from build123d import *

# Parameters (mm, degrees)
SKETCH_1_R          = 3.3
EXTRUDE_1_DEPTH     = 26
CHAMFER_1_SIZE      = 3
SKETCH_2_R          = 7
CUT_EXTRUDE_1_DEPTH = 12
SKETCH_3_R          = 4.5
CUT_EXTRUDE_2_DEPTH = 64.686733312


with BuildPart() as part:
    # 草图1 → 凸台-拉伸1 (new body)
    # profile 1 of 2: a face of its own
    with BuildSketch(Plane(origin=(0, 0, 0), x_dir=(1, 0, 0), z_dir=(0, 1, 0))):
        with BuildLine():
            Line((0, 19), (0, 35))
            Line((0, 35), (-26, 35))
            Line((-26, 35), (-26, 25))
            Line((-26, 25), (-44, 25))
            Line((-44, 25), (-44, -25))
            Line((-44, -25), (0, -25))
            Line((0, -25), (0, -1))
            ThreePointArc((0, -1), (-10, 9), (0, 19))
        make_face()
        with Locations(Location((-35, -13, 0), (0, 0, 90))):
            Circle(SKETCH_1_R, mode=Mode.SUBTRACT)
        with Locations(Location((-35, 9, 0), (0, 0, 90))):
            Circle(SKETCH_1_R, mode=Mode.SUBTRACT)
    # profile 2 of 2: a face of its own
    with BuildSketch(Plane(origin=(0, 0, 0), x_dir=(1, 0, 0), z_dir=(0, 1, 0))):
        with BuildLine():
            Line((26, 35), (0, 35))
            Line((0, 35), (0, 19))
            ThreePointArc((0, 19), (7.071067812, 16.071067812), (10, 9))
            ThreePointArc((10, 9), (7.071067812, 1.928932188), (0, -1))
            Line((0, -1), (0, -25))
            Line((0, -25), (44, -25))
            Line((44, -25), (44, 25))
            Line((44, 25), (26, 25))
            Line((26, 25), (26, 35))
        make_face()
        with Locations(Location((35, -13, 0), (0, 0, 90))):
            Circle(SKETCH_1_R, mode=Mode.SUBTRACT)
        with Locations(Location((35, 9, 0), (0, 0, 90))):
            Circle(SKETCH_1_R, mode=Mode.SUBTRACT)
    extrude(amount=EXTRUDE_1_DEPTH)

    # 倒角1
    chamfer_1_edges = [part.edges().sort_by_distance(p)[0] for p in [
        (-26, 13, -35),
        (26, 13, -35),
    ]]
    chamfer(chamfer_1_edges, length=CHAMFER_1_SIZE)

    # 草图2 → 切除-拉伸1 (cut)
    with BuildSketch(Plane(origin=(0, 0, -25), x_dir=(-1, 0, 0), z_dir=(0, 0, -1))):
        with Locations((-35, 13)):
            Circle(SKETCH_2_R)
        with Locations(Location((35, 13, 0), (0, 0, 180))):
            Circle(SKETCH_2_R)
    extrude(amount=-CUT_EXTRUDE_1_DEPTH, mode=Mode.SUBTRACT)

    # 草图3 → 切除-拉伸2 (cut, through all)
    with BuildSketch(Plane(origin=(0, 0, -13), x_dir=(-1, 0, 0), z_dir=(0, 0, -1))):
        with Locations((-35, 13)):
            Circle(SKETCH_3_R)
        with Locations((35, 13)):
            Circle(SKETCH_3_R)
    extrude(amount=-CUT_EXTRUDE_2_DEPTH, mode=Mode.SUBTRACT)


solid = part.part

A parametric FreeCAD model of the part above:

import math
import FreeCAD as App
import Part
import Sketcher
from FreeCAD import Vector


def edges_at(feature, points):
    """Names of the edges that pass closest to the given points."""
    edges = feature.Shape.Edges
    near = lambda p: min(range(len(edges)), key=lambda i: edges[i].distToShape(Part.Vertex(*p))[0])
    return sorted({f"Edge{near(p) + 1}" for p in points})


def add_polygon(sketch, points):
    """Adds a closed chain of lines whose ends are joined by coincident constraints."""
    first, n = sketch.GeometryCount, len(points)
    for a, b in zip(points, points[1:] + points[:1]):
        sketch.addGeometry(Part.LineSegment(App.Vector(*a, 0), App.Vector(*b, 0)), False)
    for i in range(n):
        sketch.addConstraint(Sketcher.Constraint("Coincident", first + i, 2, first + (i + 1) % n, 1))

doc = App.newDocument("Part")
params = doc.addObject("Spreadsheet::Sheet", "Params")
for row, (alias, value) in enumerate([
    ("sketch1_radius", "10 mm"),
    ("sketch1_diameter", "6.6 mm"),
    ("sketch1_width", "18 mm"),
    ("sketch1_width2", "88 mm"),
    ("sketch1_height", "10 mm"),
    ("pad1_length", "26 mm"),
    ("chamfer_size", "3 mm"),
    ("sketch2_diameter", "14 mm"),
    ("pocket1_length", "12 mm"),
    ("sketch3_diameter", "9 mm"),
], start=1):
    params.set(f"A{row}", alias)
    params.set(f"B{row}", "=" + value)
    params.setAlias(f"B{row}", alias)

body = doc.addObject("PartDesign::Body", "Body")

sketch1 = body.newObject("Sketcher::SketchObject", "Sketch")
sketch1.AttachmentSupport = (doc.getObject("XZ_Plane"), [""])
sketch1.MapMode = "FlatFace"
add_polygon(sketch1, [(-26, -35), (-26, -25), (-44, -25), (-44, 25), (44, 25), (44, -25), (26, -25), (26, -35)])
sketch1.addGeometry(Part.ArcOfCircle(Part.Circle(Vector(0, -9, 0), Vector(0, 0, 1), 10), math.radians(90), math.radians(270)), False)
sketch1.addGeometry(Part.ArcOfCircle(Part.Circle(Vector(0, -9, 0), Vector(0, 0, 1), 10), math.radians(-90), math.radians(0)), False)
sketch1.addGeometry(Part.ArcOfCircle(Part.Circle(Vector(0, -9, 0), Vector(0, 0, 1), 10), math.radians(0), math.radians(90)), False)
sketch1.addGeometry(Part.Circle(Vector(-35, 13, 0), Vector(0, 0, 1), 3.3), False)
sketch1.addGeometry(Part.Circle(Vector(-35, -9, 0), Vector(0, 0, 1), 3.3), False)
sketch1.addGeometry(Part.Circle(Vector(35, -9, 0), Vector(0, 0, 1), 3.3), False)
sketch1.addGeometry(Part.Circle(Vector(35, 13, 0), Vector(0, 0, 1), 3.3), False)
sketch1.addConstraint([
    Sketcher.Constraint("Tangent", 8, 2, 9, 1),
    Sketcher.Constraint("Tangent", 9, 2, 10, 1),
    Sketcher.Constraint("Tangent", 10, 2, 8, 1),
    Sketcher.Constraint("Vertical", 0),
    Sketcher.Constraint("Horizontal", 1),
    Sketcher.Constraint("Vertical", 2),
    Sketcher.Constraint("Horizontal", 3),
    Sketcher.Constraint("Vertical", 4),
    Sketcher.Constraint("Horizontal", 5),
    Sketcher.Constraint("Vertical", 6),
    Sketcher.Constraint("Horizontal", 7),
    Sketcher.Constraint("Equal", 11, 12),
    Sketcher.Constraint("Equal", 12, 13),
    Sketcher.Constraint("Equal", 13, 14),
    Sketcher.Constraint("Symmetric", 1, 2, 3, 2, -1, 1),
    Sketcher.Constraint("Symmetric", 12, 3, 13, 3, -2),
    Sketcher.Constraint("Symmetric", 11, 3, 14, 3, -2),
    Sketcher.Constraint("Symmetric", 0, 2, 5, 2, -2),
    Sketcher.Constraint("PointOnObject", 8, 3, -2),
    Sketcher.Constraint("PointOnObject", 8, 2, -2),
    Sketcher.Constraint("PointOnObject", 10, 2, -2),
    Sketcher.Constraint("Horizontal", 10, 3, 12, 3),
    Sketcher.Constraint("Horizontal", 13, 3, 9, 2),
    Sketcher.Constraint("Vertical", 11, 3, 12, 3),
    Sketcher.Constraint("Radius", 8, 10.0),
    Sketcher.Constraint("Diameter", 11, 6.6),
    Sketcher.Constraint("DistanceX", 1, 2, 1, 1, 18.0),
    Sketcher.Constraint("DistanceX", 3, 1, 3, 2, 88.0),
    Sketcher.Constraint("DistanceY", 0, 1, 0, 2, 10.0),
    Sketcher.Constraint("DistanceY", 2, 1, 2, 2, 50.0),
    Sketcher.Constraint("DistanceY", 8, 3, -1, 1, 9.0),
    Sketcher.Constraint("DistanceX", 11, 3, -1, 1, 35.0),
    Sketcher.Constraint("DistanceY", -1, 1, 11, 3, 13.0),
])
sketch1.setExpression("Constraints[32]", "Params.sketch1_radius")
sketch1.setExpression("Constraints[33]", "Params.sketch1_diameter")
sketch1.setExpression("Constraints[34]", "Params.sketch1_width")
sketch1.setExpression("Constraints[35]", "Params.sketch1_width2")
sketch1.setExpression("Constraints[36]", "Params.sketch1_height")
pad1 = body.newObject("PartDesign::Pad", "Pad")
pad1.Profile = sketch1
pad1.setExpression("Length", "Params.pad1_length")
pad1.Reversed = True
doc.recompute()

chamfer = body.newObject("PartDesign::Chamfer", "Chamfer")
chamfer.Base = (pad1, edges_at(pad1, [(-26, 13, -35), (26, 13, -35)]))
chamfer.setExpression("Size", "Params.chamfer_size")

sketch2 = body.newObject("Sketcher::SketchObject", "Sketch001")
sketch2.AttachmentSupport = (doc.getObject("XY_Plane"), [""])
sketch2.MapMode = "FlatFace"
sketch2.AttachmentOffset = App.Placement(Vector(0, 0, -25), App.Rotation())
sketch2.addGeometry([
    Part.Circle(Vector(35, 13, 0), Vector(0, 0, 1), 7),
    Part.Circle(Vector(-35, 13, 0), Vector(0, 0, 1), 7),
], False)
sketch2.addConstraint([
    Sketcher.Constraint("Equal", 0, 1),
    Sketcher.Constraint("Symmetric", 0, 3, 1, 3, -2),
    Sketcher.Constraint("Diameter", 0, 14.0),
    Sketcher.Constraint("DistanceX", -1, 1, 0, 3, 35.0),
    Sketcher.Constraint("DistanceY", -1, 1, 0, 3, 13.0),
])
sketch2.setExpression("Constraints[2]", "Params.sketch2_diameter")
pocket1 = body.newObject("PartDesign::Pocket", "Pocket")
pocket1.Profile = sketch2
pocket1.setExpression("Length", "Params.pocket1_length")
pocket1.Reversed = True

sketch3 = body.newObject("Sketcher::SketchObject", "Sketch002")
sketch3.AttachmentSupport = (doc.getObject("XY_Plane"), [""])
sketch3.MapMode = "FlatFace"
sketch3.AttachmentOffset = App.Placement(Vector(0, 0, -13), App.Rotation())
sketch3.addGeometry([
    Part.Circle(Vector(35, 13, 0), Vector(0, 0, 1), 4.5),
    Part.Circle(Vector(-35, 13, 0), Vector(0, 0, 1), 4.5),
], False)
sketch3.addConstraint([
    Sketcher.Constraint("Equal", 0, 1),
    Sketcher.Constraint("Symmetric", 0, 3, 1, 3, -2),
    Sketcher.Constraint("Diameter", 0, 9.0),
    Sketcher.Constraint("DistanceX", -1, 1, 0, 3, 35.0),
    Sketcher.Constraint("DistanceY", -1, 1, 0, 3, 13.0),
])
sketch3.setExpression("Constraints[2]", "Params.sketch3_diameter")
pocket2 = body.newObject("PartDesign::Pocket", "Pocket001")
pocket2.Profile = sketch3
pocket2.Type = "ThroughAll"
pocket2.Reversed = True

doc.recompute()
